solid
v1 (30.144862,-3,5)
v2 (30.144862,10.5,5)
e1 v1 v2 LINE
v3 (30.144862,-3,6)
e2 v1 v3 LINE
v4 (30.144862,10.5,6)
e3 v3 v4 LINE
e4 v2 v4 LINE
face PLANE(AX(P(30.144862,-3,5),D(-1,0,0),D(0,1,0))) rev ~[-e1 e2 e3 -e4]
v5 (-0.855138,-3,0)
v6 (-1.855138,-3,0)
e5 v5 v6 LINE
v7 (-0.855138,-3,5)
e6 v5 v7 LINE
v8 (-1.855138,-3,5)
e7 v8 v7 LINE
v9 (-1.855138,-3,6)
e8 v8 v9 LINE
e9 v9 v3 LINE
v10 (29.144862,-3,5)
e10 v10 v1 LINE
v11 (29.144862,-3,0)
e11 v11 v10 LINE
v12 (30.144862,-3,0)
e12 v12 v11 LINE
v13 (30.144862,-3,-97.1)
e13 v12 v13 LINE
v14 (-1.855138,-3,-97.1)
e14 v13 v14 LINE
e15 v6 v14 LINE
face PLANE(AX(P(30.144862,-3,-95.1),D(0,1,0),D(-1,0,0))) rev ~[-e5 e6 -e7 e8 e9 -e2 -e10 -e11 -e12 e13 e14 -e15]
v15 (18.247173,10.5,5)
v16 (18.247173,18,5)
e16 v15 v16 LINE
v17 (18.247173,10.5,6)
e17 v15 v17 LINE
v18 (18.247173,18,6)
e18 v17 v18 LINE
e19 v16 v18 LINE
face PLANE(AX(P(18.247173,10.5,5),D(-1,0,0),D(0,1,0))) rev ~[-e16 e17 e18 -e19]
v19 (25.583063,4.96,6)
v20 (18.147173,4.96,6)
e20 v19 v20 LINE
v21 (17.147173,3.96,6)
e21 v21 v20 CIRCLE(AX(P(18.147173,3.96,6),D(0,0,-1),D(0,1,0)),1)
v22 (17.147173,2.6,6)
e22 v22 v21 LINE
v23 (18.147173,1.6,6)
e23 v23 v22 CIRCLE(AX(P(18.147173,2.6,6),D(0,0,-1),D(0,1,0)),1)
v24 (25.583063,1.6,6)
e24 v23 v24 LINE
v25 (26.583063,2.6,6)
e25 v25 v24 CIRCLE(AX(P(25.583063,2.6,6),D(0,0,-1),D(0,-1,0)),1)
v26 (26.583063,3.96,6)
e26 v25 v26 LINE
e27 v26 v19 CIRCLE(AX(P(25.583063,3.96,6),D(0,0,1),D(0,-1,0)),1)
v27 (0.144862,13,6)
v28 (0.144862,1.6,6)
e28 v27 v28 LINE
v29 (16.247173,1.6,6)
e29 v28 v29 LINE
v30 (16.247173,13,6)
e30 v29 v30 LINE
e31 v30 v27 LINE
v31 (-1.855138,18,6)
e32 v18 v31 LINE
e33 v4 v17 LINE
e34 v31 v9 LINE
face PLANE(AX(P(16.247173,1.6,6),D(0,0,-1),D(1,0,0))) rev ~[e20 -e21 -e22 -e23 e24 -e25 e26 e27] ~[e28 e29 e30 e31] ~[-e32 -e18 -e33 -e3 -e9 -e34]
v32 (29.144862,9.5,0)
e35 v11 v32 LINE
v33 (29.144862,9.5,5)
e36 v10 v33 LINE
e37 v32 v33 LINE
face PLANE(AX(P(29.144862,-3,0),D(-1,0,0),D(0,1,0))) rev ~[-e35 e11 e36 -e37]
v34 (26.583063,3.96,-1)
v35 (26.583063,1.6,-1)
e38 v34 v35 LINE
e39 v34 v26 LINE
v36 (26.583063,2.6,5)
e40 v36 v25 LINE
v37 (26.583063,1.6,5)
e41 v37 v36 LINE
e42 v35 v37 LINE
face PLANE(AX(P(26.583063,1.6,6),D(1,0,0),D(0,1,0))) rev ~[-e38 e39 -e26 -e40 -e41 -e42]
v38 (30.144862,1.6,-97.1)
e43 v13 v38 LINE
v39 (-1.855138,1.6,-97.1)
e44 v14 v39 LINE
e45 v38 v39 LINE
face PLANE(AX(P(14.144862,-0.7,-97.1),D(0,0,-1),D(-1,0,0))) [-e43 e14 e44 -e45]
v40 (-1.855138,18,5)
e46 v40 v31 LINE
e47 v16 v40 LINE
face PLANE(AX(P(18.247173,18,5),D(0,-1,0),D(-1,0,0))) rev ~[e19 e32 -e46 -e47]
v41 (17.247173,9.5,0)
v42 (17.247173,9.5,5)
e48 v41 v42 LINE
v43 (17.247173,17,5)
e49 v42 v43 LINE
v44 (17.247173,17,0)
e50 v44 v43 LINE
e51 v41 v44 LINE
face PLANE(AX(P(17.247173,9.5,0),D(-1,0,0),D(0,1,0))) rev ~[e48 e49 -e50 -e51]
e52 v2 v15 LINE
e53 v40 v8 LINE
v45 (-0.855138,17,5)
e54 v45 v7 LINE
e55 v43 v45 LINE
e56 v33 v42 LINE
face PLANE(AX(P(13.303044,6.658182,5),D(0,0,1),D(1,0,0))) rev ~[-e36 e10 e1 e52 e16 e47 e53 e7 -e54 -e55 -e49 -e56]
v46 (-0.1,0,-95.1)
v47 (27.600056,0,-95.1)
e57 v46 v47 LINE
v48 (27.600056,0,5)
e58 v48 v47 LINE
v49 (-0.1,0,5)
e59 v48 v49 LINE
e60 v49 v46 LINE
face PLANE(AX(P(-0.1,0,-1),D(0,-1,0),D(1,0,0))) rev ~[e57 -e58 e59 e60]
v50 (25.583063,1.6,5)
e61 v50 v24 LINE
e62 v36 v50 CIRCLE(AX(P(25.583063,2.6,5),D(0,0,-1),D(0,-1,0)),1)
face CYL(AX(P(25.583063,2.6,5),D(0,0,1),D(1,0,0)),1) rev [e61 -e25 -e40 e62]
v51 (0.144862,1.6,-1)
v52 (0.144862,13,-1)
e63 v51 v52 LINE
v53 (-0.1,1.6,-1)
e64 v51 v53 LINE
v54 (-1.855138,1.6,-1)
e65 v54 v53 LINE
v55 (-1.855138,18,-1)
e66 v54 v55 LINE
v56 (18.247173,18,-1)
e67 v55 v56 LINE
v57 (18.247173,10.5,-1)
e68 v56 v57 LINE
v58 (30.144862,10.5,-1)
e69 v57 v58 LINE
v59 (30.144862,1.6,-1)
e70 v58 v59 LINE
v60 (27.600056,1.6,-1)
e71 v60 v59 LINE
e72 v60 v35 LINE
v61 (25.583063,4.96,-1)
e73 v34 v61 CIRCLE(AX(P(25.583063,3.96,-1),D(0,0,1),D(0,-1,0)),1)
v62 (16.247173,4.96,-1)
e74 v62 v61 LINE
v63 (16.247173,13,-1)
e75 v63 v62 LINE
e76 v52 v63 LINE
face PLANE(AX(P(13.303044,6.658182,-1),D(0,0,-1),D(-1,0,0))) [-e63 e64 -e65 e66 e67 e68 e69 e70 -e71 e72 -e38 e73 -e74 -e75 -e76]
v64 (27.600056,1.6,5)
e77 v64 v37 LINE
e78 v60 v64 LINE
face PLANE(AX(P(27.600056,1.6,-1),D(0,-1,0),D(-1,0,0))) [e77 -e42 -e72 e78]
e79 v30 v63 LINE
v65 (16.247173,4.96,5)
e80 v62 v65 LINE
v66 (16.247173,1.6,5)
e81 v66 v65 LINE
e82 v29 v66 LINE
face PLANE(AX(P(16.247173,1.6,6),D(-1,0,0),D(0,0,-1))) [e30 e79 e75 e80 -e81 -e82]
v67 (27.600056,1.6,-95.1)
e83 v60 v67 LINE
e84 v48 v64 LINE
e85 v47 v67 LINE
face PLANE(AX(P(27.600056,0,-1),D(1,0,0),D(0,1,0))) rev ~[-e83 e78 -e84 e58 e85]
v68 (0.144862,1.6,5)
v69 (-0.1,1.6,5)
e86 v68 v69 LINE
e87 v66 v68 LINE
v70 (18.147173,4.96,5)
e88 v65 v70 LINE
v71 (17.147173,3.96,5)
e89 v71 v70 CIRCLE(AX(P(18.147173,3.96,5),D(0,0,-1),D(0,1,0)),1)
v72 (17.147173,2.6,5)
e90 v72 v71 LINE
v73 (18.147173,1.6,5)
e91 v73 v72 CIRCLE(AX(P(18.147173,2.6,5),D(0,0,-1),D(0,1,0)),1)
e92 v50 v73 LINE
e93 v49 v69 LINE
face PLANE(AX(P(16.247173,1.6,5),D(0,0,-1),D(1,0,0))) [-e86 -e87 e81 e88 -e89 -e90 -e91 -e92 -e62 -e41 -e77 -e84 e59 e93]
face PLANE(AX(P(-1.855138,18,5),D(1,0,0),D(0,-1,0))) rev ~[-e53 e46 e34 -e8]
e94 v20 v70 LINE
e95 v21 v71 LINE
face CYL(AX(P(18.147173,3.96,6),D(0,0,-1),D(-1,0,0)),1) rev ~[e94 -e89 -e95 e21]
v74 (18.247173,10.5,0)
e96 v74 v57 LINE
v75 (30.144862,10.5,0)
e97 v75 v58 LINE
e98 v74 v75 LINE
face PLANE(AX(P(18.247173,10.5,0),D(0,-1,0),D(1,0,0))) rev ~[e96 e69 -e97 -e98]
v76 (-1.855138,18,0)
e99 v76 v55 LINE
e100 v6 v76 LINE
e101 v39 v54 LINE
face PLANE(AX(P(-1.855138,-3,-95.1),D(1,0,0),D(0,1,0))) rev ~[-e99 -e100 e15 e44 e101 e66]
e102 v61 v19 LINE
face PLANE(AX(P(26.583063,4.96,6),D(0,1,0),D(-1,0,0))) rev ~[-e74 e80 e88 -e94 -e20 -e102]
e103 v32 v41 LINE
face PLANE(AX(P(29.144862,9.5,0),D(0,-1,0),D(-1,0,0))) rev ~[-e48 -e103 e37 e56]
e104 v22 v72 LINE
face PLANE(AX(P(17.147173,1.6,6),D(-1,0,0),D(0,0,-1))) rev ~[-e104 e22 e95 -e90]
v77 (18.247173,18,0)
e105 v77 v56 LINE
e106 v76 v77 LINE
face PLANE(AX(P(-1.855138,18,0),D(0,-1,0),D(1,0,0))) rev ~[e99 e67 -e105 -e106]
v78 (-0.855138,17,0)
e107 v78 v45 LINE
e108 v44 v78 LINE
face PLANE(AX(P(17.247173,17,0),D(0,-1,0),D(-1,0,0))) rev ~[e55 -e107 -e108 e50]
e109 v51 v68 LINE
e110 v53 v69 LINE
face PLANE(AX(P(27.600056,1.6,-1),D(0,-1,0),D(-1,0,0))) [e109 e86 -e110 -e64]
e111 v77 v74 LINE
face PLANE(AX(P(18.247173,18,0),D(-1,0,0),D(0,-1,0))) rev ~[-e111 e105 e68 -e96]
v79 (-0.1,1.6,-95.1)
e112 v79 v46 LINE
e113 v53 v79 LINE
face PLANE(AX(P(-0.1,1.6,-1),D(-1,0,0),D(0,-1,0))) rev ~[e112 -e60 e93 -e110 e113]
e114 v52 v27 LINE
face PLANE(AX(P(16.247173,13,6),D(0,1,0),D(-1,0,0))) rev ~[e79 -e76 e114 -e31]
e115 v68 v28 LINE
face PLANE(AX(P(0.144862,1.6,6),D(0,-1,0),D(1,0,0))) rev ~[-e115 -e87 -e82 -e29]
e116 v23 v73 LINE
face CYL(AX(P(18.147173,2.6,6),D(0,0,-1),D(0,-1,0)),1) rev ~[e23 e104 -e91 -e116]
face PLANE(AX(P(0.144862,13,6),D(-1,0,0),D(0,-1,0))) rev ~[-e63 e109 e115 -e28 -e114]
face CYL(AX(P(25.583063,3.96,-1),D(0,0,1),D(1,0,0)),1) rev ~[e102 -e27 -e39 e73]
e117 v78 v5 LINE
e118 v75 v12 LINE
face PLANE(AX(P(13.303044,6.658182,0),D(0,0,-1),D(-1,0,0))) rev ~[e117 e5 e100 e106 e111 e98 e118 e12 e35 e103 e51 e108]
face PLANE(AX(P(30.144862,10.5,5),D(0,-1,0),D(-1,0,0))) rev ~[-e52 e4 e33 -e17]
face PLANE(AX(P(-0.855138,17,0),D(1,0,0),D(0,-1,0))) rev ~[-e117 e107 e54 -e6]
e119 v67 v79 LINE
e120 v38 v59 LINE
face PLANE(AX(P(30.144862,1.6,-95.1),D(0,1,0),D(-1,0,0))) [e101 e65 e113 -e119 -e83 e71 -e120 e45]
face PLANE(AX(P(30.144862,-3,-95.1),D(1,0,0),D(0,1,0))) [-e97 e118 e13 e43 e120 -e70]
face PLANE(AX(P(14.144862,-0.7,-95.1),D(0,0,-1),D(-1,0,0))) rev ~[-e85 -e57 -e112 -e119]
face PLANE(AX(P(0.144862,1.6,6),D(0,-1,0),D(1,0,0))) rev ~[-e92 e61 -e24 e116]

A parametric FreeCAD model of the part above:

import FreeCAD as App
import Part
import Sketcher
from FreeCAD import Vector
Q = App.Units.Quantity


def edges_at(feature, points):
    """Names of the edges that pass closest to the given points."""
    edges = feature.Shape.Edges
    near = lambda p: min(range(len(edges)), key=lambda i: edges[i].distToShape(Part.Vertex(*p))[0])
    return sorted({f"Edge{near(p) + 1}" for p in points})


def add_polygon(sketch, points):
    """Adds a closed chain of lines whose ends are joined by coincident constraints."""
    first, n = sketch.GeometryCount, len(points)
    for a, b in zip(points, points[1:] + points[:1]):
        sketch.addGeometry(Part.LineSegment(App.Vector(*a, 0), App.Vector(*b, 0)), False)
    for i in range(n):
        sketch.addConstraint(Sketcher.Constraint("Coincident", first + i, 2, first + (i + 1) % n, 1))

doc = App.newDocument("Part")
body = doc.addObject("PartDesign::Body", "Body")

# Sketch on XY plane
sketch1 = doc.addObject("Sketcher::SketchObject", "Sketch")
body.addObject(sketch1)
sketch1.AttachmentSupport = (doc.XY_Plane, [""])
sketch1.MapMode = "FlatFace"
add_polygon(sketch1, [(-0.855138, -3), (29.144862, -3), (29.144862, 9.5), (17.247173, 9.5), (17.247173, 17), (-0.855138, 17)])  # lines 0-5
add_polygon(sketch1, [(26.583063, 1.6), (0.144862, 1.6), (0.144862, 13), (16.247173, 13), (16.247173, 4.96), (26.583063, 4.96)])  # lines 6-11
sketch1.addConstraint([
    Sketcher.Constraint("Horizontal", 0),
    Sketcher.Constraint("Vertical", 1),
    Sketcher.Constraint("Horizontal", 2),
    Sketcher.Constraint("Vertical", 3),
    Sketcher.Constraint("Horizontal", 4),
    Sketcher.Constraint("Vertical", 5),
    Sketcher.Constraint("Horizontal", 6),
    Sketcher.Constraint("Vertical", 7),
    Sketcher.Constraint("Horizontal", 8),
    Sketcher.Constraint("Vertical", 9),
    Sketcher.Constraint("Horizontal", 10),
    Sketcher.Constraint("Vertical", 11),
    Sketcher.Constraint("DistanceX", 0, 1, 0, 2, Q("30 mm")),
    Sketcher.Constraint("DistanceY", 5, 2, 5, 1, Q("20 mm")),
    Sketcher.Constraint("DistanceY", 1, 1, 1, 2, Q("12.5 mm")),
    Sketcher.Constraint("DistanceY", 7, 1, 7, 2, Q("11.4 mm")),
    Sketcher.Constraint("DistanceY", 0, 2, -1, 1, Q("3 mm")),
    Sketcher.Constraint("DistanceY", -1, 1, 7, 2, Q("13 mm")),
    Sketcher.Constraint("DistanceX", 5, 2, 6, 2, Q("1 mm")),
    Sketcher.Constraint("DistanceX", 8, 2, 2, 2, Q("1 mm")),
    Sketcher.Constraint("DistanceY", 9, 2, 9, 1, Q("8.04 mm")),
    Sketcher.Constraint("DistanceX", 6, 2, 6, 1, Q("26.438202 mm")),
    Sketcher.Constraint("DistanceX", 2, 2, 2, 1, Q("11.897689 mm")),
    Sketcher.Constraint("DistanceX", -1, 1, 0, 2, Q("29.144862 mm")),
])
pad1 = doc.addObject("PartDesign::Pad", "Pad")
body.addObject(pad1)
pad1.Profile = sketch1
pad1.Length = 5

# Sketch on XY plane
sketch2 = doc.addObject("Sketcher::SketchObject", "Sketch001")
body.addObject(sketch2)
sketch2.AttachmentSupport = (doc.XY_Plane, [""])
sketch2.MapMode = "FlatFace"
sketch2.AttachmentOffset = App.Placement(Vector(0, 0, 5), App.Rotation())
add_polygon(sketch2, [(-1.855138, -3), (30.144862, -3), (30.144862, 10.5), (18.247173, 10.5), (18.247173, 18), (-1.855138, 18)])  # lines 0-5
sketch2.addConstraint([
    Sketcher.Constraint("Horizontal", 0),
    Sketcher.Constraint("Vertical", 1),
    Sketcher.Constraint("Horizontal", 2),
    Sketcher.Constraint("Vertical", 3),
    Sketcher.Constraint("Horizontal", 4),
    Sketcher.Constraint("Vertical", 5),
    Sketcher.Constraint("DistanceX", 0, 1, 0, 2, Q("32 mm")),
    Sketcher.Constraint("DistanceY", 5, 2, 5, 1, Q("21 mm")),
    Sketcher.Constraint("DistanceY", 1, 1, 1, 2, Q("13.5 mm")),
    Sketcher.Constraint("DistanceY", 0, 2, -1, 1, Q("3 mm")),
    Sketcher.Constraint("DistanceX", 2, 2, 2, 1, Q("11.897689 mm")),
    Sketcher.Constraint("DistanceX", -1, 1, 0, 2, Q("30.144862 mm")),
])
pad2 = doc.addObject("PartDesign::Pad", "Pad001")
body.addObject(pad2)
pad2.Profile = sketch2
pad2.Length = 1

# Sketch on XY plane
sketch3 = doc.addObject("Sketcher::SketchObject", "Sketch002")
body.addObject(sketch3)
sketch3.AttachmentSupport = (doc.XY_Plane, [""])
sketch3.MapMode = "FlatFace"
add_polygon(sketch3, [(-1.855138, -3), (-1.855138, 18), (18.247173, 18), (18.247173, 10.5), (30.144862, 10.5), (30.144862, -3)])  # lines 0-5
sketch3.addConstraint([
    Sketcher.Constraint("Vertical", 0),
    Sketcher.Constraint("Horizontal", 1),
    Sketcher.Constraint("Vertical", 2),
    Sketcher.Constraint("Horizontal", 3),
    Sketcher.Constraint("Vertical", 4),
    Sketcher.Constraint("Horizontal", 5),
    Sketcher.Constraint("DistanceX", 5, 2, 5, 1, Q("32 mm")),
    Sketcher.Constraint("DistanceY", 0, 1, 0, 2, Q("21 mm")),
    Sketcher.Constraint("DistanceY", 2, 2, 2, 1, Q("7.5 mm")),
    Sketcher.Constraint("DistanceY", -1, 1, 0, 2, Q("18 mm")),
    Sketcher.Constraint("DistanceX", 1, 1, 1, 2, Q("20.102311 mm")),
    Sketcher.Constraint("DistanceX", 0, 2, -1, 1, Q("1.855138 mm")),
])
pad3 = doc.addObject("PartDesign::Pad", "Pad002")
body.addObject(pad3)
pad3.Profile = sketch3
pad3.Length = 1
pad3.Reversed = True

# Sketch on XY plane
sketch4 = doc.addObject("Sketcher::SketchObject", "Sketch003")
body.addObject(sketch4)
sketch4.AttachmentSupport = (doc.XY_Plane, [""])
sketch4.MapMode = "FlatFace"
sketch4.AttachmentOffset = App.Placement(Vector(0, 0, 6), App.Rotation())
add_polygon(sketch4, [(16.247173, 4.96), (16.247173, 13), (0.144862, 13), (0.144862, 1.6), (26.583063, 1.6), (26.583063, 4.96)])  # lines 0-5
sketch4.addConstraint([
    Sketcher.Constraint("Vertical", 0),
    Sketcher.Constraint("Horizontal", 1),
    Sketcher.Constraint("Vertical", 2),
    Sketcher.Constraint("Horizontal", 3),
    Sketcher.Constraint("Vertical", 4),
    Sketcher.Constraint("Horizontal", 5),
    Sketcher.Constraint("DistanceY", 2, 2, 2, 1, Q("11.4 mm")),
    Sketcher.Constraint("DistanceY", -1, 1, 0, 2, Q("13 mm")),
    Sketcher.Constraint("DistanceY", 0, 1, 0, 2, Q("8.04 mm")),
    Sketcher.Constraint("DistanceX", 3, 1, 3, 2, Q("26.438202 mm")),
    Sketcher.Constraint("DistanceX", 1, 2, 1, 1, Q("16.102311 mm")),
    Sketcher.Constraint("DistanceX", -1, 1, 1, 2, Q("0.144862 mm")),
])
pocket1 = doc.addObject("PartDesign::Pocket", "Pocket")
body.addObject(pocket1)
pocket1.Profile = sketch4
pocket1.Type = "ThroughAll"

# Sketch on XY plane
sketch5 = doc.addObject("Sketcher::SketchObject", "Sketch004")
body.addObject(sketch5)
sketch5.AttachmentSupport = (doc.XY_Plane, [""])
sketch5.MapMode = "FlatFace"
sketch5.AttachmentOffset = App.Placement(Vector(0, 0, -1), App.Rotation())
add_polygon(sketch5, [(27.600056, 1.6), (27.600056, 0), (-0.1, 0), (-0.1, 1.6)])  # lines 0-3
sketch5.addConstraint([
    Sketcher.Constraint("Vertical", 0),
    Sketcher.Constraint("Horizontal", 1),
    Sketcher.Constraint("Vertical", 2),
    Sketcher.Constraint("Horizontal", 3),
    Sketcher.Constraint("PointOnObject", 0, 2, -1),
    Sketcher.Constraint("DistanceY", 0, 2, 0, 1, Q("1.6 mm")),
    Sketcher.Constraint("DistanceX", 1, 2, -1, 1, Q("0.1 mm")),
    Sketcher.Constraint("DistanceX", 1, 2, 1, 1, Q("27.700056 mm")),
])
pocket2 = doc.addObject("PartDesign::Pocket", "Pocket001")
body.addObject(pocket2)
pocket2.Profile = sketch5
pocket2.Length = 6
pocket2.Reversed = True

# Sketch on XY plane
sketch6 = doc.addObject("Sketcher::SketchObject", "Sketch005")
body.addObject(sketch6)
sketch6.AttachmentSupport = (doc.XY_Plane, [""])
sketch6.MapMode = "FlatFace"
sketch6.AttachmentOffset = App.Placement(Vector(0, 0, -1), App.Rotation())
add_polygon(sketch6, [(30.144862, -3), (-1.855138, -3), (-1.855138, 1.6), (-0.1, 1.6), (-0.1, 0), (27.600056, 0), (27.600056, 1.6), (30.144862, 1.6)])  # lines 0-7
sketch6.addConstraint([
    Sketcher.Constraint("Horizontal", 0),
    Sketcher.Constraint("Vertical", 1),
    Sketcher.Constraint("Horizontal", 2),
    Sketcher.Constraint("Vertical", 3),
    Sketcher.Constraint("Horizontal", 4),
    Sketcher.Constraint("Vertical", 5),
    Sketcher.Constraint("Horizontal", 6),
    Sketcher.Constraint("Vertical", 7),
    Sketcher.Constraint("PointOnObject", 3, 2, -1),
    Sketcher.Constraint("Horizontal", 2, 2, 5, 2),
    Sketcher.Constraint("DistanceX", 0, 2, 0, 1, Q("32 mm")),
    Sketcher.Constraint("DistanceY", 1, 1, 1, 2, Q("4.6 mm")),
    Sketcher.Constraint("DistanceY", 3, 2, 3, 1, Q("1.6 mm")),
    Sketcher.Constraint("DistanceX", 2, 2, -1, 1, Q("0.1 mm")),
    Sketcher.Constraint("DistanceX", 2, 1, 2, 2, Q("1.755138 mm")),
    Sketcher.Constraint("DistanceX", 4, 1, 4, 2, Q("27.700056 mm")),
])
pad4 = doc.addObject("PartDesign::Pad", "Pad003")
body.addObject(pad4)
pad4.Profile = sketch6
pad4.Length = 94.1
pad4.Reversed = True

# Sketch on XY plane
sketch7 = doc.addObject("Sketcher::SketchObject", "Sketch006")
body.addObject(sketch7)
sketch7.AttachmentSupport = (doc.XY_Plane, [""])
sketch7.MapMode = "FlatFace"
sketch7.AttachmentOffset = App.Placement(Vector(0, 0, -95.1), App.Rotation())
add_polygon(sketch7, [(30.144862, 1.6), (30.144862, -3), (-1.855138, -3), (-1.855138, 1.6)])  # lines 0-3
sketch7.addConstraint([
    Sketcher.Constraint("Vertical", 0),
    Sketcher.Constraint("Horizontal", 1),
    Sketcher.Constraint("Vertical", 2),
    Sketcher.Constraint("Horizontal", 3),
    Sketcher.Constraint("DistanceX", 1, 2, 1, 1, Q("32 mm")),
    Sketcher.Constraint("DistanceY", 0, 2, 0, 1, Q("4.6 mm")),
    Sketcher.Constraint("DistanceY", 0, 2, -1, 1, Q("3 mm")),
    Sketcher.Constraint("DistanceX", -1, 1, 0, 2, Q("30.144862 mm")),
])
pad5 = doc.addObject("PartDesign::Pad", "Pad004")
body.addObject(pad5)
pad5.Profile = sketch7
pad5.Length = 2
pad5.Reversed = True

# Sketch on XZ plane
sketch8 = doc.addObject("Sketcher::SketchObject", "Sketch007")
body.addObject(sketch8)
sketch8.AttachmentSupport = (doc.XZ_Plane, [""])
sketch8.MapMode = "FlatFace"
sketch8.AttachmentOffset = App.Placement(Vector(0, 0, -1.6), App.Rotation())
add_polygon(sketch8, [(16.247173, 5), (16.247173, 6), (17.147173, 6), (17.147173, 5)])  # lines 0-3
sketch8.addConstraint([
    Sketcher.Constraint("Vertical", 0),
    Sketcher.Constraint("Horizontal", 1),
    Sketcher.Constraint("Vertical", 2),
    Sketcher.Constraint("Horizontal", 3),
    Sketcher.Constraint("DistanceY", 0, 1, 0, 2, Q("1 mm")),
    Sketcher.Constraint("DistanceX", 1, 1, 1, 2, Q("0.9 mm")),
    Sketcher.Constraint("DistanceY", -1, 1, 0, 2, Q("6 mm")),
    Sketcher.Constraint("DistanceX", -1, 1, 0, 2, Q("16.247173 mm")),
])
pad6 = doc.addObject("PartDesign::Pad", "Pad005")
body.addObject(pad6)
pad6.Profile = sketch8
pad6.Length = 3.36
pad6.Reversed = True
doc.recompute()

fillet = doc.addObject("PartDesign::Fillet", "Fillet")
body.addObject(fillet)
fillet.Base = (pad6, edges_at(pad6, [
    (17.147, 4.96, 5.5),
    (17.147, 1.6, 5.5),
    (26.583, 1.6, 5.5),
    (26.583, 4.96, 2.5),
]))
fillet.Radius = 1

doc.recompute()
